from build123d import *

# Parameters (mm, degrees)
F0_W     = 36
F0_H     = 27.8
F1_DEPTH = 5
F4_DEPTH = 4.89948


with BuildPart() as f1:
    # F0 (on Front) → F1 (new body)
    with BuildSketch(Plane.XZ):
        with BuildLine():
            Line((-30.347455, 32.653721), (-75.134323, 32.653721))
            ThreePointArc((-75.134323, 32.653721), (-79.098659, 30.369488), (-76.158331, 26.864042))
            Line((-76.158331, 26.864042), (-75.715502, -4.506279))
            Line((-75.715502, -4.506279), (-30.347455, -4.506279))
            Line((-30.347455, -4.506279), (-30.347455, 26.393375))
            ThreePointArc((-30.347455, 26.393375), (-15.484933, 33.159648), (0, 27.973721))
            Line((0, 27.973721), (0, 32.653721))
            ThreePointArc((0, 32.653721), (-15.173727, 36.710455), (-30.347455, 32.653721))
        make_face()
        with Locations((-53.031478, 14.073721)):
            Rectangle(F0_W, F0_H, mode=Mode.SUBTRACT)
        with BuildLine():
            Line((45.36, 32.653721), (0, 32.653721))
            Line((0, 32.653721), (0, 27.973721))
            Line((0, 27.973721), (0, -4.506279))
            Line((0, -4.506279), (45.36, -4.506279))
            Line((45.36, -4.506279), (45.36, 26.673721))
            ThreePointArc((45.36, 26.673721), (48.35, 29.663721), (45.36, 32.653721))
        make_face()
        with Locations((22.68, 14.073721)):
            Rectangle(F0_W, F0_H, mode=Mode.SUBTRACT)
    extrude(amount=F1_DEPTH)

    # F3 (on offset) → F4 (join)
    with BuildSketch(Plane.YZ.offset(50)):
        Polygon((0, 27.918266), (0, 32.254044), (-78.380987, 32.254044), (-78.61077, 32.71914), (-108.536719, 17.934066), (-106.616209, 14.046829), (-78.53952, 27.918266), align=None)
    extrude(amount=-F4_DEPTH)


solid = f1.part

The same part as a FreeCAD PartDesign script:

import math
import FreeCAD as App
import Part
import Sketcher
from FreeCAD import Vector

doc = App.newDocument("Part")
params = doc.addObject("Spreadsheet::Sheet", "Params")
for row, (alias, value) in enumerate([
    ("sketch1_width", "36 mm"),
    ("sketch1_radius", "2.99 mm"),
    ("sketch1_height", "27.8 mm"),
    ("sketch1_width2", "45.36 mm"),
    ("sketch1_height2", "32.48 mm"),
    ("pad1_length", "5 mm"),
    ("pad2_length", "4.89948 mm"),
], start=1):
    params.set(f"A{row}", alias)
    params.set(f"B{row}", "=" + value)
    params.setAlias(f"B{row}", alias)

body = doc.addObject("PartDesign::Body", "Body")

sketch1 = body.newObject("Sketcher::SketchObject", "Sketch")
sketch1.AttachmentSupport = (doc.getObject("XZ_Plane"), [""])
sketch1.MapMode = "FlatFace"
sketch1.addGeometry([
    Part.LineSegment(Vector(-30.347455, 32.653721, 0), Vector(-75.134323, 32.653721, 0)),
    Part.ArcOfCircle(Part.Circle(Vector(-76.158807, 29.849523, 0), Vector(0, 0, 1), 2.985481), math.radians(69.930766), math.radians(270.00913)),
    Part.LineSegment(Vector(-76.158331, 26.864042, 0), Vector(-75.715502, -4.506279, 0)),
    Part.LineSegment(Vector(-75.715502, -4.506279, 0), Vector(-30.347455, -4.506279, 0)),
    Part.LineSegment(Vector(-30.347455, -4.506279, 0), Vector(-30.347455, 26.393375, 0)),
    Part.ArcOfCircle(Part.Circle(Vector(-14.326179, 10.908031, 0), Vector(0, 0, 1), 22.281768), math.radians(49.987463), math.radians(135.974515)),
    Part.LineSegment(Vector(0, 27.973721, 0), Vector(0, -4.506279, 0)),
    Part.LineSegment(Vector(0, -4.506279, 0), Vector(45.36, -4.506279, 0)),
    Part.LineSegment(Vector(45.36, -4.506279, 0), Vector(45.36, 26.673721, 0)),
    Part.ArcOfCircle(Part.Circle(Vector(45.36, 29.663721, 0), Vector(0, 0, 1), 2.99), math.radians(-90), math.radians(90)),
    Part.LineSegment(Vector(45.36, 32.653721, 0), Vector(0, 32.653721, 0)),
    Part.ArcOfCircle(Part.Circle(Vector(-15.173728, 6.304333, 0), Vector(0, 0, 1), 30.406122), math.radians(60.063805), math.radians(119.936195)),
    Part.LineSegment(Vector(-35.031478, 0.173721, 0), Vector(-71.031478, 0.173721, 0)),
    Part.LineSegment(Vector(-71.031478, 0.173721, 0), Vector(-71.031478, 27.973721, 0)),
    Part.LineSegment(Vector(-71.031478, 27.973721, 0), Vector(-35.031478, 27.973721, 0)),
    Part.LineSegment(Vector(-35.031478, 27.973721, 0), Vector(-35.031478, 0.173721, 0)),
    Part.LineSegment(Vector(40.68, 0.173721, 0), Vector(4.68, 0.173721, 0)),
    Part.LineSegment(Vector(4.68, 0.173721, 0), Vector(4.68, 27.973721, 0)),
    Part.LineSegment(Vector(4.68, 27.973721, 0), Vector(40.68, 27.973721, 0)),
    Part.LineSegment(Vector(40.68, 27.973721, 0), Vector(40.68, 0.173721, 0)),
], False)
sketch1.addConstraint([
    Sketcher.Constraint("Coincident", 0, 2, 1, 1),
    Sketcher.Constraint("Coincident", 1, 2, 2, 1),
    Sketcher.Constraint("Coincident", 2, 2, 3, 1),
    Sketcher.Constraint("Coincident", 3, 2, 4, 1),
    Sketcher.Constraint("Coincident", 4, 2, 5, 2),
    Sketcher.Constraint("Coincident", 5, 1, 6, 1),
    Sketcher.Constraint("Coincident", 6, 2, 7, 1),
    Sketcher.Constraint("Coincident", 7, 2, 8, 1),
    Sketcher.Constraint("Coincident", 8, 2, 9, 1),
    Sketcher.Constraint("Tangent", 9, 2, 10, 1),
    Sketcher.Constraint("Coincident", 10, 2, 11, 1),
    Sketcher.Constraint("Coincident", 11, 2, 0, 1),
    Sketcher.Constraint("Coincident", 12, 2, 13, 1),
    Sketcher.Constraint("Coincident", 13, 2, 14, 1),
    Sketcher.Constraint("Coincident", 14, 2, 15, 1),
    Sketcher.Constraint("Coincident", 15, 2, 12, 1),
    Sketcher.Constraint("Coincident", 16, 2, 17, 1),
    Sketcher.Constraint("Coincident", 17, 2, 18, 1),
    Sketcher.Constraint("Coincident", 18, 2, 19, 1),
    Sketcher.Constraint("Coincident", 19, 2, 16, 1),
    Sketcher.Constraint("Horizontal", 0),
    Sketcher.Constraint("Horizontal", 3),
    Sketcher.Constraint("Vertical", 4),
    Sketcher.Constraint("Vertical", 6),
    Sketcher.Constraint("Horizontal", 7),
    Sketcher.Constraint("Vertical", 8),
    Sketcher.Constraint("Horizontal", 10),
    Sketcher.Constraint("Horizontal", 12),
    Sketcher.Constraint("Vertical", 13),
    Sketcher.Constraint("Horizontal", 14),
    Sketcher.Constraint("Vertical", 15),
    Sketcher.Constraint("Horizontal", 16),
    Sketcher.Constraint("Vertical", 17),
    Sketcher.Constraint("Horizontal", 18),
    Sketcher.Constraint("Vertical", 19),
    Sketcher.Constraint("PointOnObject", 5, 1, -2),
    Sketcher.Constraint("PointOnObject", 10, 2, -2),
    Sketcher.Constraint("Horizontal", 3, 2, 6, 2),
    Sketcher.Constraint("Horizontal", 0, 2, 9, 2),
    Sketcher.Constraint("Horizontal", 5, 1, 13, 2),
    Sketcher.Constraint("Horizontal", 15, 2, 16, 2),
    Sketcher.Constraint("Horizontal", 14, 2, 17, 2),
    Sketcher.Constraint("Vertical", 9, 3, 7, 2),
    Sketcher.Constraint("Vertical", 4, 2, 11, 2),
    Sketcher.Constraint("Equal", 14, 16),
    Sketcher.Constraint("DistanceX", 12, 2, 12, 1, 36.0),
    Sketcher.Constraint("Radius", 9, 2.99),
    Sketcher.Constraint("DistanceY", 13, 1, 13, 2, 27.8),
    Sketcher.Constraint("DistanceX", 7, 1, 7, 2, 45.36),
    Sketcher.Constraint("DistanceY", 6, 2, 6, 1, 32.48),
    Sketcher.Constraint("DistanceY", 8, 1, 8, 2, 31.18),
    Sketcher.Constraint("DistanceX", -1, 1, 16, 2, 4.68),
    Sketcher.Constraint("Radius", 1, 2.985481),
    Sketcher.Constraint("Radius", 11, 30.406122),
    Sketcher.Constraint("Radius", 5, 22.281768),
    Sketcher.Constraint("DistanceX", 2, 2, -1, 1, 75.715502),
    Sketcher.Constraint("DistanceY", 9, 3, 1, 3, 0.185802),
    Sketcher.Constraint("DistanceX", 14, 2, 5, 3, 20.705299),
    Sketcher.Constraint("DistanceX", 0, 2, 0, 1, 44.786868),
    Sketcher.Constraint("DistanceX", 3, 1, 3, 2, 45.368047),
    Sketcher.Constraint("DistanceY", 4, 1, 4, 2, 30.899654),
    Sketcher.Constraint("DistanceY", -1, 1, 5, 3, 10.908031),
    Sketcher.Constraint("DistanceX", 1, 2, -1, 1, 76.158331),
])
sketch1.setExpression("Constraints[45]", "Params.sketch1_width")
sketch1.setExpression("Constraints[46]", "Params.sketch1_radius")
sketch1.setExpression("Constraints[47]", "Params.sketch1_height")
sketch1.setExpression("Constraints[48]", "Params.sketch1_width2")
sketch1.setExpression("Constraints[49]", "Params.sketch1_height2")
pad1 = body.newObject("PartDesign::Pad", "Pad")
pad1.Profile = sketch1
pad1.setExpression("Length", "Params.pad1_length")

sketch2 = body.newObject("Sketcher::SketchObject", "Sketch001")
sketch2.AttachmentSupport = (doc.getObject("YZ_Plane"), [""])
sketch2.MapMode = "FlatFace"
sketch2.AttachmentOffset = App.Placement(Vector(0, 0, 50), App.Rotation())
sketch2.addGeometry([
    Part.LineSegment(Vector(0, 27.918266, 0), Vector(0, 32.254044, 0)),
    Part.LineSegment(Vector(0, 32.254044, 0), Vector(-78.380987, 32.254044, 0)),
    Part.LineSegment(Vector(-78.380987, 32.254044, 0), Vector(-78.61077, 32.71914, 0)),
    Part.LineSegment(Vector(-78.61077, 32.71914, 0), Vector(-108.536719, 17.934066, 0)),
    Part.LineSegment(Vector(-108.536719, 17.934066, 0), Vector(-106.616209, 14.046829, 0)),
    Part.LineSegment(Vector(-106.616209, 14.046829, 0), Vector(-78.53952, 27.918266, 0)),
    Part.LineSegment(Vector(-78.53952, 27.918266, 0), Vector(0, 27.918266, 0)),
], False)
sketch2.addConstraint([
    Sketcher.Constraint("Coincident", 0, 2, 1, 1),
    Sketcher.Constraint("Coincident", 1, 2, 2, 1),
    Sketcher.Constraint("Coincident", 2, 2, 3, 1),
    Sketcher.Constraint("Coincident", 3, 2, 4, 1),
    Sketcher.Constraint("Coincident", 4, 2, 5, 1),
    Sketcher.Constraint("Coincident", 5, 2, 6, 1),
    Sketcher.Constraint("Coincident", 6, 2, 0, 1),
    Sketcher.Constraint("Vertical", 0),
    Sketcher.Constraint("Horizontal", 1),
    Sketcher.Constraint("Horizontal", 6),
    Sketcher.Constraint("PointOnObject", 0, 2, -2),
    Sketcher.Constraint("Perpendicular", 2, 3),
    Sketcher.Constraint("Perpendicular", 3, 4),
    Sketcher.Constraint("Perpendicular", 4, 5),
    Sketcher.Constraint("DistanceX", 6, 1, 6, 2, 78.53952),
    Sketcher.Constraint("DistanceY", 0, 1, 0, 2, 4.335778),
    Sketcher.Constraint("DistanceX", 3, 2, 5, 2, 29.997199),
    Sketcher.Constraint("DistanceY", 3, 2, 5, 2, 9.9842),
    Sketcher.Constraint("DistanceX", 1, 2, 1, 1, 78.380987),
    Sketcher.Constraint("DistanceX", 2, 2, -1, 1, 78.61077),
    Sketcher.Constraint("DistanceY", -1, 1, 2, 2, 32.71914),
])
pad2 = body.newObject("PartDesign::Pad", "Pad001")
pad2.Profile = sketch2
pad2.setExpression("Length", "Params.pad2_length")
pad2.Reversed = True

doc.recompute()
